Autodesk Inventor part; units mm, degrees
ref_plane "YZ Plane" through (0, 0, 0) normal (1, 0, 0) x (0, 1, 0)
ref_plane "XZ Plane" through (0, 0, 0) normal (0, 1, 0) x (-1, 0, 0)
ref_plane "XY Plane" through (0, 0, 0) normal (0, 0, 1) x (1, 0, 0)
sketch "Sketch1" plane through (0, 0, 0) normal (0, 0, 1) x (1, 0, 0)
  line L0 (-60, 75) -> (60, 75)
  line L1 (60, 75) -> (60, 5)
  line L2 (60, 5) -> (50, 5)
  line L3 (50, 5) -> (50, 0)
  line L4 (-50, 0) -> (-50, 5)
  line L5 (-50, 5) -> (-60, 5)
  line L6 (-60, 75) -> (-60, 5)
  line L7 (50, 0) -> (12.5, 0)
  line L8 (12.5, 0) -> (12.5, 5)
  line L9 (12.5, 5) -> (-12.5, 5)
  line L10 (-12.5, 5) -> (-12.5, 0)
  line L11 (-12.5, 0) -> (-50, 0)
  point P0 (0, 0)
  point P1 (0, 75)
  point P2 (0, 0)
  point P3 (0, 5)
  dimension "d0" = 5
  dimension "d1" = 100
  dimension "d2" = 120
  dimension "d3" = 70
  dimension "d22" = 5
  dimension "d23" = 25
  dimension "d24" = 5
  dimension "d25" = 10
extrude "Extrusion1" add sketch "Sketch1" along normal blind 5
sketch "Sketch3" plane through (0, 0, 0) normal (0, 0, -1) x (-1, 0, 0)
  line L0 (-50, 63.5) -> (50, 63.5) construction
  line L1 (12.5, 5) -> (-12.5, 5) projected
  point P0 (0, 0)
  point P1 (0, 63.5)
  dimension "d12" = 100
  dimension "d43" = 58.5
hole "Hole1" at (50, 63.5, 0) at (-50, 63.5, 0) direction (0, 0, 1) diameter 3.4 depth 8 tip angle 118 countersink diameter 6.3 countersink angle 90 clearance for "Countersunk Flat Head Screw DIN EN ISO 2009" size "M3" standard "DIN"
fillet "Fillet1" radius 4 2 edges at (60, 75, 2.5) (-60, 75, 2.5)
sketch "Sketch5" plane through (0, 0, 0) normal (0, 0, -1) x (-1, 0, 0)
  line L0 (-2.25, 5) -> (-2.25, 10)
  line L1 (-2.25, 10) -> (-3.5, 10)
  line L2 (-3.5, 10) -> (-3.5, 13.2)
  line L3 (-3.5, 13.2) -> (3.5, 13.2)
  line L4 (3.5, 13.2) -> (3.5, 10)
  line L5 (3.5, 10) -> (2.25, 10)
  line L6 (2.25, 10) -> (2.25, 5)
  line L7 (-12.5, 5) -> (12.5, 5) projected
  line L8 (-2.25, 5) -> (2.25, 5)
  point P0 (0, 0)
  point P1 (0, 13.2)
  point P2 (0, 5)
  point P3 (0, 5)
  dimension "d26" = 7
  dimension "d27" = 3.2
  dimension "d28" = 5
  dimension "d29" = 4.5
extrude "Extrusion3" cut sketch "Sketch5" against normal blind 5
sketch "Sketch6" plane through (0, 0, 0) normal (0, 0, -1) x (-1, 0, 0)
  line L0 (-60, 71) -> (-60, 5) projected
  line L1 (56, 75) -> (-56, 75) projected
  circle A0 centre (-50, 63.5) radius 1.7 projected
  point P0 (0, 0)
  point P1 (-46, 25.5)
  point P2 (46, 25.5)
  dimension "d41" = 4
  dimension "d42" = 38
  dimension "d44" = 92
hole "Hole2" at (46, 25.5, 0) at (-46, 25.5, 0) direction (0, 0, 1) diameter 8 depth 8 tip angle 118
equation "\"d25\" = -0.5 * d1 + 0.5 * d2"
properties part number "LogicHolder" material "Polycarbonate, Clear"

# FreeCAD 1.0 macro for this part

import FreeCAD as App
import Part
import Sketcher

V = App.Vector
Q = App.Units.Quantity


def edges_at(feature, points):
    """Names of the edges that pass closest to the given points."""
    edges = feature.Shape.Edges
    near = lambda p: min(range(len(edges)), key=lambda i: edges[i].distToShape(Part.Vertex(*p))[0])
    return sorted({f"Edge{near(p) + 1}" for p in points})


def add_polygon(sketch, points):
    """Adds a closed chain of lines whose ends are joined by coincident constraints."""
    first, n = sketch.GeometryCount, len(points)
    for a, b in zip(points, points[1:] + points[:1]):
        sketch.addGeometry(Part.LineSegment(App.Vector(*a, 0), App.Vector(*b, 0)), False)
    for i in range(n):
        sketch.addConstraint(Sketcher.Constraint("Coincident", first + i, 2, first + (i + 1) % n, 1))

doc = App.newDocument("Part")
body = doc.addObject("PartDesign::Body", "Body")

sketch1 = body.newObject("Sketcher::SketchObject", "Sketch")
sketch1.AttachmentSupport = (doc.getObject("XY_Plane"), [""])
sketch1.MapMode = "FlatFace"
add_polygon(sketch1, [(60, 75), (-60, 75), (-60, 5), (-50, 5), (-50, 0), (-12.5, 0), (-12.5, 5), (12.5, 5), (12.5, 0), (50, 0), (50, 5), (60, 5)])
sketch1.addConstraint([
    Sketcher.Constraint("Horizontal", 0),
    Sketcher.Constraint("Vertical", 1),
    Sketcher.Constraint("Horizontal", 2),
    Sketcher.Constraint("Vertical", 3),
    Sketcher.Constraint("Horizontal", 4),
    Sketcher.Constraint("Vertical", 5),
    Sketcher.Constraint("Horizontal", 6),
    Sketcher.Constraint("Vertical", 7),
    Sketcher.Constraint("Horizontal", 8),
    Sketcher.Constraint("Vertical", 9),
    Sketcher.Constraint("Horizontal", 10),
    Sketcher.Constraint("Vertical", 11),
    Sketcher.Constraint("Symmetric", 4, 2, 7, 2, -1, 1),
    Sketcher.Constraint("Symmetric", 3, 2, 8, 2, -2),
    Sketcher.Constraint("Symmetric", 1, 2, 10, 2, -2),
    Sketcher.Constraint("Horizontal", 2, 2, 5, 2),
    Sketcher.Constraint("DistanceX", 0, 2, 0, 1, Q("120 mm")),
    Sketcher.Constraint("DistanceX", 2, 1, 2, 2, Q("10 mm")),
    Sketcher.Constraint("DistanceX", 6, 1, 6, 2, Q("25 mm")),
    Sketcher.Constraint("DistanceY", 1, 2, 1, 1, Q("70 mm")),
    Sketcher.Constraint("DistanceY", 3, 2, 3, 1, Q("5 mm")),
])
pad1 = body.newObject("PartDesign::Pad", "Pad")
pad1.Profile = sketch1
pad1.Length = 5

sketch2 = body.newObject("Sketcher::SketchObject", "Sketch001")
sketch2.AttachmentSupport = (doc.getObject("XY_Plane"), [""])
sketch2.MapMode = "FlatFace"
sketch2.addGeometry([
    Part.Circle(V(50, 63.5, 0), V(0, 0, 1), 1.7),
    Part.Circle(V(-50, 63.5, 0), V(0, 0, 1), 1.7),
], False)
sketch2.addConstraint([
    Sketcher.Constraint("Equal", 0, 1),
    Sketcher.Constraint("Symmetric", 0, 3, 1, 3, -2),
    Sketcher.Constraint("Diameter", 0, Q("3.4 mm")),
    Sketcher.Constraint("DistanceX", -1, 1, 0, 3, Q("50 mm")),
    Sketcher.Constraint("DistanceY", -1, 1, 0, 3, Q("63.5 mm")),
])
doc.recompute()
hole = body.newObject("PartDesign::Hole", "Hole")
hole.Profile = sketch2
hole.ThreadType = "None"
hole.Diameter = 3.4
hole.DepthType = "Dimension"
hole.Depth = 8
hole.DrillPoint = "Angled"
hole.DrillPointAngle = 118
hole.HoleCutType = "Countersink"
hole.HoleCutDiameter = 6.3
hole.HoleCutCountersinkAngle = 90
hole.Reversed = True
doc.recompute()

fillet = body.newObject("PartDesign::Fillet", "Fillet")
fillet.Base = (hole, edges_at(hole, [(60, 75, 2.5), (-60, 75, 2.5)]))
fillet.Radius = 4

sketch3 = body.newObject("Sketcher::SketchObject", "Sketch002")
sketch3.AttachmentSupport = (doc.getObject("XY_Plane"), [""])
sketch3.MapMode = "FlatFace"
add_polygon(sketch3, [(2.25, 10), (2.25, 5), (-2.25, 5), (-2.25, 10), (-3.5, 10), (-3.5, 13.2), (3.5, 13.2), (3.5, 10)])
sketch3.addConstraint([
    Sketcher.Constraint("Vertical", 0),
    Sketcher.Constraint("Horizontal", 1),
    Sketcher.Constraint("Vertical", 2),
    Sketcher.Constraint("Horizontal", 3),
    Sketcher.Constraint("Vertical", 4),
    Sketcher.Constraint("Horizontal", 5),
    Sketcher.Constraint("Vertical", 6),
    Sketcher.Constraint("Horizontal", 7),
    Sketcher.Constraint("Symmetric", 3, 2, 6, 2, -2),
    Sketcher.Constraint("Equal", 3, 7),
    Sketcher.Constraint("DistanceX", 5, 1, 5, 2, Q("7 mm")),
    Sketcher.Constraint("DistanceY", 0, 2, 0, 1, Q("5 mm")),
    Sketcher.Constraint("DistanceX", 1, 2, 1, 1, Q("4.5 mm")),
    Sketcher.Constraint("DistanceY", 4, 1, 4, 2, Q("3.2 mm")),
    Sketcher.Constraint("DistanceY", -1, 1, 0, 2, Q("5 mm")),
])
pocket1 = body.newObject("PartDesign::Pocket", "Pocket")
pocket1.Profile = sketch3
pocket1.Length = 5
pocket1.Reversed = True

sketch4 = body.newObject("Sketcher::SketchObject", "Sketch003")
sketch4.AttachmentSupport = (doc.getObject("XY_Plane"), [""])
sketch4.MapMode = "FlatFace"
sketch4.addGeometry([
    Part.Circle(V(46, 25.5, 0), V(0, 0, 1), 4),
    Part.Circle(V(-46, 25.5, 0), V(0, 0, 1), 4),
], False)
sketch4.addConstraint([
    Sketcher.Constraint("Equal", 0, 1),
    Sketcher.Constraint("Symmetric", 0, 3, 1, 3, -2),
    Sketcher.Constraint("Diameter", 0, Q("8 mm")),
    Sketcher.Constraint("DistanceX", -1, 1, 0, 3, Q("46 mm")),
    Sketcher.Constraint("DistanceY", -1, 1, 0, 3, Q("25.5 mm")),
])
doc.recompute()
hole2 = body.newObject("PartDesign::Hole", "Hole001")
hole2.Profile = sketch4
hole2.ThreadType = "None"
hole2.Diameter = 8
hole2.DepthType = "Dimension"
hole2.Depth = 8
hole2.DrillPoint = "Angled"
hole2.DrillPointAngle = 118
hole2.Reversed = True

doc.recompute()
